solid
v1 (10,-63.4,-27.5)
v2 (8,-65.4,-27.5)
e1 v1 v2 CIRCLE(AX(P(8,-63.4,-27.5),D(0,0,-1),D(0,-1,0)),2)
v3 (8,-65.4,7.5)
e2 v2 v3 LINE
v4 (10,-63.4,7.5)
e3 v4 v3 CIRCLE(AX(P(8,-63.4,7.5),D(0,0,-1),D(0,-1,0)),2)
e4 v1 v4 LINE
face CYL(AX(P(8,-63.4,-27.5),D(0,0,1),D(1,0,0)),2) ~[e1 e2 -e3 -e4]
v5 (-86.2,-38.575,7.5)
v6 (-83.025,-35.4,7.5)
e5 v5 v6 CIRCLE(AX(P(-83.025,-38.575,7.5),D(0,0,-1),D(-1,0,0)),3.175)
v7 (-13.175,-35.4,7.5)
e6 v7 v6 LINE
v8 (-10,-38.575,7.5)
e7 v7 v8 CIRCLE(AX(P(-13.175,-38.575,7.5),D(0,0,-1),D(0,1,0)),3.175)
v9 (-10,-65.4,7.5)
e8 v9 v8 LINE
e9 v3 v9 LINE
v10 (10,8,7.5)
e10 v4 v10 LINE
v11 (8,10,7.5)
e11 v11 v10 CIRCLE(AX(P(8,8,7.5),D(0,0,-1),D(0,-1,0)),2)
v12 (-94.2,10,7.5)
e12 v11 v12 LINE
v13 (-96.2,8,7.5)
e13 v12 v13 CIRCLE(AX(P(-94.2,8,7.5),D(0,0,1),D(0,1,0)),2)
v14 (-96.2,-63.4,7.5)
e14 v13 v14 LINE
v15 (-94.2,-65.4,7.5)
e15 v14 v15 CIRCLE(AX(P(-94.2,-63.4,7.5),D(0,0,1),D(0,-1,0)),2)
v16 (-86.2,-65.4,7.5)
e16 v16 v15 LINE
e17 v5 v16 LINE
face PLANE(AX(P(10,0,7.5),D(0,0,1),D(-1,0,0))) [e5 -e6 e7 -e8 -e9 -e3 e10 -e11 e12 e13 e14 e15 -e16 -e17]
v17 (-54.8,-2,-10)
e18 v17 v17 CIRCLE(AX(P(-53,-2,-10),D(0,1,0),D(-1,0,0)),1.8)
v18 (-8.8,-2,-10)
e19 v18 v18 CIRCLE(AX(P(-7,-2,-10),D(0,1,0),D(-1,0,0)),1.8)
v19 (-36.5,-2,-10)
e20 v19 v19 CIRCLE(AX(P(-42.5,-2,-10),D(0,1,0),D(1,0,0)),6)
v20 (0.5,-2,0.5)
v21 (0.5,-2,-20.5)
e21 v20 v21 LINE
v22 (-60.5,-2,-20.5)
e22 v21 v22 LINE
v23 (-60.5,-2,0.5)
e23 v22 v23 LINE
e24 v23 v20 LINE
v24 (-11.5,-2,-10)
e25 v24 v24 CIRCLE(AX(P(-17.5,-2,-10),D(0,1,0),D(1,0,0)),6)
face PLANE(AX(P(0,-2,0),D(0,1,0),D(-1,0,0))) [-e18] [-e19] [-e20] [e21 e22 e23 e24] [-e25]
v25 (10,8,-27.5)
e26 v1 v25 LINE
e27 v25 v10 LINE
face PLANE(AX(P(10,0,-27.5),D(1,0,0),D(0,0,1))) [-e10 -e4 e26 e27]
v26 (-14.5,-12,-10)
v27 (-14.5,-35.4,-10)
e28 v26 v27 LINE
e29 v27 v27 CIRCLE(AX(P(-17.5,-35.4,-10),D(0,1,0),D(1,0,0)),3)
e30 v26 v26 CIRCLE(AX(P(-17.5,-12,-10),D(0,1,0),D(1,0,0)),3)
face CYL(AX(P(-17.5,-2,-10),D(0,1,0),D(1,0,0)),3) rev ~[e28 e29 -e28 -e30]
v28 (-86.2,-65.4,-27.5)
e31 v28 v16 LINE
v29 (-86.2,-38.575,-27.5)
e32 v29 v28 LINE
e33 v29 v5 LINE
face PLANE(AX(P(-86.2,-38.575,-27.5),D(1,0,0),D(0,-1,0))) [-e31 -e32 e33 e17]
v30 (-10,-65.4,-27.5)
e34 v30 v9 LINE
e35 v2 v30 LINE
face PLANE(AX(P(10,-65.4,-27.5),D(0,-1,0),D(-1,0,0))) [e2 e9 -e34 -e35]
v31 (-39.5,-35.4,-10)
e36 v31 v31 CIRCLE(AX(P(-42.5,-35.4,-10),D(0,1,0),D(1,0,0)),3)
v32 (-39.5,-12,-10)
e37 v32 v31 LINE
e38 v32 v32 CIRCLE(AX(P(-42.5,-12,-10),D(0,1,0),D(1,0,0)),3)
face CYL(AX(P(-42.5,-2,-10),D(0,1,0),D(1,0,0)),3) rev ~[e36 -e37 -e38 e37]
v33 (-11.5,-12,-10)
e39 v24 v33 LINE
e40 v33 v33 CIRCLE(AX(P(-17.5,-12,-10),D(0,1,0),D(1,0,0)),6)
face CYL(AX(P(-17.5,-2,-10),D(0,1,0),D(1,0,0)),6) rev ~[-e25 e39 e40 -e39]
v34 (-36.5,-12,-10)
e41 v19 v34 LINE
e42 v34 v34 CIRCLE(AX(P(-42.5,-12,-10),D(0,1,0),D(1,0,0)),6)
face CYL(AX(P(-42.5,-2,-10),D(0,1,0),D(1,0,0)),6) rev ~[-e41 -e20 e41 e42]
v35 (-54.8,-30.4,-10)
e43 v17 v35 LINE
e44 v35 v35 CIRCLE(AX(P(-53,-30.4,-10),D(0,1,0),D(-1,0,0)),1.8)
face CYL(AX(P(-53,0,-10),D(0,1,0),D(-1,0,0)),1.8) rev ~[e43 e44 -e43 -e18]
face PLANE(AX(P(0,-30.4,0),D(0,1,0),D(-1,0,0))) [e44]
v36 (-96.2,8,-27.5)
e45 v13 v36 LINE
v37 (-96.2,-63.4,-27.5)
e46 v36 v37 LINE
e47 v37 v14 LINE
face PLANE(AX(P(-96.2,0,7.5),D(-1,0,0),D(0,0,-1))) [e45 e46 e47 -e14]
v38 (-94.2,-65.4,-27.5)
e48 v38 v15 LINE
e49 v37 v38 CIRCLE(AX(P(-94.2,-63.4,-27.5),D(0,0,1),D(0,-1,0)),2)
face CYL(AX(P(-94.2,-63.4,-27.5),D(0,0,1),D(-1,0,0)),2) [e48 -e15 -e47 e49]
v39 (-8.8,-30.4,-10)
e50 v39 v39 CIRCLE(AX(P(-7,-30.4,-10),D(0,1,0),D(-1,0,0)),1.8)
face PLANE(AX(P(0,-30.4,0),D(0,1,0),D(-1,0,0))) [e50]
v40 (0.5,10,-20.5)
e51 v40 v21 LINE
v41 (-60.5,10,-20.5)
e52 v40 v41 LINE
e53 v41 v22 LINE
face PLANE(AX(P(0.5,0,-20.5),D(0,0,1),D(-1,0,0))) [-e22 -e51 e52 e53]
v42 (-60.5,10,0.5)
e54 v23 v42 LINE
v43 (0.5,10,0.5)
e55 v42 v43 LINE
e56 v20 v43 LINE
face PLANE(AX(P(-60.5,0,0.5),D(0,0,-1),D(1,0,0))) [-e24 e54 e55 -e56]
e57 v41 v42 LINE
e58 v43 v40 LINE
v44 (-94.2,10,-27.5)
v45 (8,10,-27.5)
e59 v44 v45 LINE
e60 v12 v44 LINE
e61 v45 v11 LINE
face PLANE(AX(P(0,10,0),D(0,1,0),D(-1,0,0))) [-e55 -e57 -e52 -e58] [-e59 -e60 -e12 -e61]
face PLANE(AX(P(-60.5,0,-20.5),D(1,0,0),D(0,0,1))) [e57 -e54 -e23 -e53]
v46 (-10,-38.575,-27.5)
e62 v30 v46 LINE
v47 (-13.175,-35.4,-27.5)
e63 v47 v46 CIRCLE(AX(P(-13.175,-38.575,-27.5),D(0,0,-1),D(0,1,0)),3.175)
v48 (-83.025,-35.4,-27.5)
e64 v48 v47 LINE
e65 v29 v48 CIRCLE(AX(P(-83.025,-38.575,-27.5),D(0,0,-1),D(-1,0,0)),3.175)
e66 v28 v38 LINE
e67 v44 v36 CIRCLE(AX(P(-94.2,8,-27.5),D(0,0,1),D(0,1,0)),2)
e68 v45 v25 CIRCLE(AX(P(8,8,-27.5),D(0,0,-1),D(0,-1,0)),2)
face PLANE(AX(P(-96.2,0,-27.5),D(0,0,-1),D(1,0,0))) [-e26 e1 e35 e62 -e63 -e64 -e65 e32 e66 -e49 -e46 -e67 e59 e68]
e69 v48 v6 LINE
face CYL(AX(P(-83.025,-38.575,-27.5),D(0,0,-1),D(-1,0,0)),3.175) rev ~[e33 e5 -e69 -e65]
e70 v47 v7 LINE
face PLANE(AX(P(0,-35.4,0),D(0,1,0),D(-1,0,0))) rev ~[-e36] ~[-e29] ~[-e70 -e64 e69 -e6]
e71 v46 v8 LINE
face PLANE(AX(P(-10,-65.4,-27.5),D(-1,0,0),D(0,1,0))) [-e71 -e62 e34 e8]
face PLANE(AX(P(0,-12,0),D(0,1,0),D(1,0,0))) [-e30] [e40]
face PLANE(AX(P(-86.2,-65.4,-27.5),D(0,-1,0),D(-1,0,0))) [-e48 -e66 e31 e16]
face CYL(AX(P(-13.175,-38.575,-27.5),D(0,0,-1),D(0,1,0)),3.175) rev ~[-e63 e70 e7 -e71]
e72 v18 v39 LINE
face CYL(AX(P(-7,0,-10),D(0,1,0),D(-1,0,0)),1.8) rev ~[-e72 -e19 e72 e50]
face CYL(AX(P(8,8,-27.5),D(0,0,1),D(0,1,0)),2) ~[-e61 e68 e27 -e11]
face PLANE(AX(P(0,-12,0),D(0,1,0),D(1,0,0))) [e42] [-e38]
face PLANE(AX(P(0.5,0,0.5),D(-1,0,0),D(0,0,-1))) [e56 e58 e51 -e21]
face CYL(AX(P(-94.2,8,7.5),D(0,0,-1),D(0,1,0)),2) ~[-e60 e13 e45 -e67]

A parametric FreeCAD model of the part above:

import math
import FreeCAD as App
import Part
import Sketcher
from FreeCAD import Vector


def edges_at(feature, points):
    """Names of the edges that pass closest to the given points."""
    edges = feature.Shape.Edges
    near = lambda p: min(range(len(edges)), key=lambda i: edges[i].distToShape(Part.Vertex(*p))[0])
    return sorted({f"Edge{near(p) + 1}" for p in points})


def add_polygon(sketch, points):
    """Adds a closed chain of lines whose ends are joined by coincident constraints."""
    first, n = sketch.GeometryCount, len(points)
    for a, b in zip(points, points[1:] + points[:1]):
        sketch.addGeometry(Part.LineSegment(App.Vector(*a, 0), App.Vector(*b, 0)), False)
    for i in range(n):
        sketch.addConstraint(Sketcher.Constraint("Coincident", first + i, 2, first + (i + 1) % n, 1))

doc = App.newDocument("Part")
body = doc.addObject("PartDesign::Body", "Body")

# Sketch on XZ plane
sketch1 = body.newObject("Sketcher::SketchObject", "Sketch")
sketch1.AttachmentSupport = (doc.getObject("XZ_Plane"), [""])
sketch1.MapMode = "FlatFace"
add_polygon(sketch1, [(-96, 8), (10, 8), (10, -28), (-96, -28)])  # lines 0-3
sketch1.addConstraint([
    Sketcher.Constraint("Horizontal", 0),
    Sketcher.Constraint("Vertical", 1),
    Sketcher.Constraint("Horizontal", 2),
    Sketcher.Constraint("Vertical", 3),
    Sketcher.Constraint("DistanceY", 1, 2, 1, 1, 35.0),
    Sketcher.Constraint("DistanceX", 0, 1, 0, 2, 106.2),
    Sketcher.Constraint("DistanceX", -1, 1, 0, 2, 10.0),
    Sketcher.Constraint("DistanceY", -1, 1, 0, 2, 7.5),
])
pad1 = body.newObject("PartDesign::Pad", "Pad")
pad1.Profile = sketch1
pad1.Type = "TwoLengths"
pad1.Length = 10
pad1.Length2 = 35.4
pad1.Reversed = True

# Sketch on XZ plane
sketch2 = body.newObject("Sketcher::SketchObject", "Sketch001")
sketch2.AttachmentSupport = (doc.getObject("XZ_Plane"), [""])
sketch2.MapMode = "FlatFace"
add_polygon(sketch2, [(-60.5, -20.5), (-60.5, 0.5), (0.5, 0.5), (0.5, -20.5)])  # lines 0-3
sketch2.addGeometry(Part.Circle(Vector(-7, -10, 0), Vector(0, 0, 1), 1.8), False)  # 4
sketch2.addGeometry(Part.Circle(Vector(-53, -10, 0), Vector(0, 0, 1), 1.8), False)  # 5
sketch2.addConstraint([
    Sketcher.Constraint("Vertical", 0),
    Sketcher.Constraint("Horizontal", 1),
    Sketcher.Constraint("Vertical", 2),
    Sketcher.Constraint("Horizontal", 3),
    Sketcher.Constraint("Equal", 4, 5),
    Sketcher.Constraint("Horizontal", 4, 3, 5, 3),
    Sketcher.Constraint("Diameter", 4, 3.6),
    Sketcher.Constraint("DistanceX", 5, 3, 4, 3, 46.0),
    Sketcher.Constraint("DistanceY", -1, 1, 0, 2, 0.5),
    Sketcher.Constraint("DistanceX", -1, 1, 1, 2, 0.5),
    Sketcher.Constraint("DistanceX", 1, 1, 1, 2, 61.0),
    Sketcher.Constraint("DistanceY", 0, 1, 0, 2, 21.0),
    Sketcher.Constraint("DistanceX", 4, 3, -1, 1, 7.0),
    Sketcher.Constraint("DistanceY", 4, 3, -1, 1, 10.0),
])
pocket1 = body.newObject("PartDesign::Pocket", "Pocket")
pocket1.Profile = sketch2
pocket1.Type = "TwoLengths"
pocket1.Length = 10
pocket1.Length2 = 2

# Sketch on XZ plane
sketch3 = body.newObject("Sketcher::SketchObject", "Sketch002")
sketch3.AttachmentSupport = (doc.getObject("XZ_Plane"), [""])
sketch3.MapMode = "FlatFace"
sketch3.addGeometry([
    Part.Circle(Vector(-53, -10, 0), Vector(0, 0, 1), 1.8),
    Part.Circle(Vector(-7, -10, 0), Vector(0, 0, 1), 1.8),
], False)
sketch3.addConstraint([
    Sketcher.Constraint("Equal", 0, 1),
    Sketcher.Constraint("Horizontal", 0, 3, 1, 3),
    Sketcher.Constraint("Diameter", 0, 3.6),
    Sketcher.Constraint("DistanceX", 0, 3, 1, 3, 46.0),
    Sketcher.Constraint("DistanceX", 0, 3, -1, 1, 53.0),
    Sketcher.Constraint("DistanceY", 0, 3, -1, 1, 10.0),
])
pocket2 = body.newObject("PartDesign::Pocket", "Pocket001")
pocket2.Profile = sketch3
pocket2.Type = "TwoLengths"
pocket2.Length = 10
pocket2.Length2 = 30.4

# Sketch on XY plane
sketch4 = body.newObject("Sketcher::SketchObject", "Sketch003")
sketch4.AttachmentSupport = (doc.getObject("XY_Plane"), [""])
sketch4.MapMode = "FlatFace"
sketch4.AttachmentOffset = App.Placement(Vector(0, 0, -27.5), App.Rotation())
sketch4.addGeometry([
    Part.LineSegment(Vector(-96.2, -65.4, 0), Vector(-96.2, -35.4, 0)),  # 0
    Part.LineSegment(Vector(-96.2, -35.4, 0), Vector(-83, -35.4, 0)),  # 1
    Part.ArcOfCircle(Part.Circle(Vector(-83, -38.6, 0), Vector(0, 0, 1), 3.2), math.radians(90), math.radians(180)),  # 2
    Part.LineSegment(Vector(-86.2, -38.6, 0), Vector(-86.2, -65.4, 0)),  # 3
    Part.LineSegment(Vector(-86.2, -65.4, 0), Vector(-96.2, -65.4, 0)),  # 4
    Part.ArcOfCircle(Part.Circle(Vector(-13.2, -38.6, 0), Vector(0, 0, 1), 3.2), math.radians(0), math.radians(90)),  # 5
    Part.LineSegment(Vector(-13.2, -35.4, 0), Vector(10, -35.4, 0)),  # 6
    Part.LineSegment(Vector(10, -35.4, 0), Vector(10, -65.4, 0)),  # 7
    Part.LineSegment(Vector(10, -65.4, 0), Vector(-10, -65.4, 0)),  # 8
    Part.LineSegment(Vector(-10, -65.4, 0), Vector(-10, -38.6, 0)),  # 9
], False)
sketch4.addConstraint([
    Sketcher.Constraint("Coincident", 0, 2, 1, 1),
    Sketcher.Constraint("Tangent", 1, 2, 2, 1),
    Sketcher.Constraint("Tangent", 2, 2, 3, 1),
    Sketcher.Constraint("Coincident", 3, 2, 4, 1),
    Sketcher.Constraint("Coincident", 4, 2, 0, 1),
    Sketcher.Constraint("Tangent", 5, 2, 6, 1),
    Sketcher.Constraint("Coincident", 6, 2, 7, 1),
    Sketcher.Constraint("Coincident", 7, 2, 8, 1),
    Sketcher.Constraint("Coincident", 8, 2, 9, 1),
    Sketcher.Constraint("Tangent", 9, 2, 5, 1),
    Sketcher.Constraint("Vertical", 0),
    Sketcher.Constraint("Horizontal", 1),
    Sketcher.Constraint("Vertical", 3),
    Sketcher.Constraint("Horizontal", 4),
    Sketcher.Constraint("Horizontal", 6),
    Sketcher.Constraint("Vertical", 7),
    Sketcher.Constraint("Horizontal", 8),
    Sketcher.Constraint("Vertical", 9),
    Sketcher.Constraint("Equal", 2, 5),
    Sketcher.Constraint("Horizontal", 2, 3, 5, 3),
    Sketcher.Constraint("Horizontal", 4, 2, 7, 2),
    Sketcher.Constraint("DistanceX", 8, 2, 8, 1, 20.0),
    Sketcher.Constraint("DistanceY", 0, 1, 0, 2, 30.0),
    Sketcher.Constraint("Radius", 2, 3.175),
    Sketcher.Constraint("DistanceX", 3, 2, 8, 2, 76.2),
    Sketcher.Constraint("DistanceX", 4, 2, 4, 1, 10.0),
    Sketcher.Constraint("DistanceX", -1, 1, 6, 2, 10.0),
    Sketcher.Constraint("DistanceY", 0, 2, -1, 1, 35.4),
])
pad2 = body.newObject("PartDesign::Pad", "Pad001")
pad2.Profile = sketch4
pad2.Length = 35

# Sketch on XZ plane
sketch5 = body.newObject("Sketcher::SketchObject", "Sketch004")
sketch5.AttachmentSupport = (doc.getObject("XZ_Plane"), [""])
sketch5.MapMode = "FlatFace"
sketch5.AttachmentOffset = App.Placement(Vector(0, 0, 2), App.Rotation())
sketch5.addGeometry([
    Part.Circle(Vector(-42.5, -10, 0), Vector(0, 0, 1), 3),
    Part.Circle(Vector(-17.5, -10, 0), Vector(0, 0, 1), 3),
], False)
sketch5.addConstraint([
    Sketcher.Constraint("Equal", 0, 1),
    Sketcher.Constraint("Horizontal", 0, 3, 1, 3),
    Sketcher.Constraint("Diameter", 0, 6.0),
    Sketcher.Constraint("DistanceX", 0, 3, 1, 3, 25.0),
    Sketcher.Constraint("DistanceY", 0, 3, -1, 1, 10.0),
    Sketcher.Constraint("DistanceX", 0, 3, -1, 1, 42.5),
])
pocket3 = body.newObject("PartDesign::Pocket", "Pocket002")
pocket3.Profile = sketch5
pocket3.Length = 33.4
pocket3.Reversed = True

# Sketch on XZ plane
sketch6 = body.newObject("Sketcher::SketchObject", "Sketch005")
sketch6.AttachmentSupport = (doc.getObject("XZ_Plane"), [""])
sketch6.MapMode = "FlatFace"
sketch6.AttachmentOffset = App.Placement(Vector(0, 0, 2), App.Rotation())
sketch6.addGeometry([
    Part.Circle(Vector(-18, -10, 0), Vector(0, 0, 1), 6),
    Part.Circle(Vector(-42, -10, 0), Vector(0, 0, 1), 6),
], False)
sketch6.addConstraint([
    Sketcher.Constraint("Equal", 0, 1),
    Sketcher.Constraint("Horizontal", 0, 3, 1, 3),
    Sketcher.Constraint("Diameter", 0, 12.0),
    Sketcher.Constraint("DistanceY", 0, 3, -1, 1, 10.0),
    Sketcher.Constraint("DistanceX", 1, 3, 0, 3, 25.0),
    Sketcher.Constraint("DistanceX", 0, 3, -1, 1, 17.5),
])
pocket4 = body.newObject("PartDesign::Pocket", "Pocket003")
pocket4.Profile = sketch6
pocket4.Length = 10
pocket4.Reversed = True
doc.recompute()

fillet = body.newObject("PartDesign::Fillet", "Fillet")
fillet.Base = (pocket4, edges_at(pocket4, [(-96.2, 10, -10), (10, 10, -10)]))
fillet.Radius = 2
doc.recompute()

fillet2 = body.newObject("PartDesign::Fillet", "Fillet001")
fillet2.Base = (fillet, edges_at(fillet, [(-96.2, -65.4, -10), (10, -65.4, -10)]))
fillet2.Radius = 2

doc.recompute()
